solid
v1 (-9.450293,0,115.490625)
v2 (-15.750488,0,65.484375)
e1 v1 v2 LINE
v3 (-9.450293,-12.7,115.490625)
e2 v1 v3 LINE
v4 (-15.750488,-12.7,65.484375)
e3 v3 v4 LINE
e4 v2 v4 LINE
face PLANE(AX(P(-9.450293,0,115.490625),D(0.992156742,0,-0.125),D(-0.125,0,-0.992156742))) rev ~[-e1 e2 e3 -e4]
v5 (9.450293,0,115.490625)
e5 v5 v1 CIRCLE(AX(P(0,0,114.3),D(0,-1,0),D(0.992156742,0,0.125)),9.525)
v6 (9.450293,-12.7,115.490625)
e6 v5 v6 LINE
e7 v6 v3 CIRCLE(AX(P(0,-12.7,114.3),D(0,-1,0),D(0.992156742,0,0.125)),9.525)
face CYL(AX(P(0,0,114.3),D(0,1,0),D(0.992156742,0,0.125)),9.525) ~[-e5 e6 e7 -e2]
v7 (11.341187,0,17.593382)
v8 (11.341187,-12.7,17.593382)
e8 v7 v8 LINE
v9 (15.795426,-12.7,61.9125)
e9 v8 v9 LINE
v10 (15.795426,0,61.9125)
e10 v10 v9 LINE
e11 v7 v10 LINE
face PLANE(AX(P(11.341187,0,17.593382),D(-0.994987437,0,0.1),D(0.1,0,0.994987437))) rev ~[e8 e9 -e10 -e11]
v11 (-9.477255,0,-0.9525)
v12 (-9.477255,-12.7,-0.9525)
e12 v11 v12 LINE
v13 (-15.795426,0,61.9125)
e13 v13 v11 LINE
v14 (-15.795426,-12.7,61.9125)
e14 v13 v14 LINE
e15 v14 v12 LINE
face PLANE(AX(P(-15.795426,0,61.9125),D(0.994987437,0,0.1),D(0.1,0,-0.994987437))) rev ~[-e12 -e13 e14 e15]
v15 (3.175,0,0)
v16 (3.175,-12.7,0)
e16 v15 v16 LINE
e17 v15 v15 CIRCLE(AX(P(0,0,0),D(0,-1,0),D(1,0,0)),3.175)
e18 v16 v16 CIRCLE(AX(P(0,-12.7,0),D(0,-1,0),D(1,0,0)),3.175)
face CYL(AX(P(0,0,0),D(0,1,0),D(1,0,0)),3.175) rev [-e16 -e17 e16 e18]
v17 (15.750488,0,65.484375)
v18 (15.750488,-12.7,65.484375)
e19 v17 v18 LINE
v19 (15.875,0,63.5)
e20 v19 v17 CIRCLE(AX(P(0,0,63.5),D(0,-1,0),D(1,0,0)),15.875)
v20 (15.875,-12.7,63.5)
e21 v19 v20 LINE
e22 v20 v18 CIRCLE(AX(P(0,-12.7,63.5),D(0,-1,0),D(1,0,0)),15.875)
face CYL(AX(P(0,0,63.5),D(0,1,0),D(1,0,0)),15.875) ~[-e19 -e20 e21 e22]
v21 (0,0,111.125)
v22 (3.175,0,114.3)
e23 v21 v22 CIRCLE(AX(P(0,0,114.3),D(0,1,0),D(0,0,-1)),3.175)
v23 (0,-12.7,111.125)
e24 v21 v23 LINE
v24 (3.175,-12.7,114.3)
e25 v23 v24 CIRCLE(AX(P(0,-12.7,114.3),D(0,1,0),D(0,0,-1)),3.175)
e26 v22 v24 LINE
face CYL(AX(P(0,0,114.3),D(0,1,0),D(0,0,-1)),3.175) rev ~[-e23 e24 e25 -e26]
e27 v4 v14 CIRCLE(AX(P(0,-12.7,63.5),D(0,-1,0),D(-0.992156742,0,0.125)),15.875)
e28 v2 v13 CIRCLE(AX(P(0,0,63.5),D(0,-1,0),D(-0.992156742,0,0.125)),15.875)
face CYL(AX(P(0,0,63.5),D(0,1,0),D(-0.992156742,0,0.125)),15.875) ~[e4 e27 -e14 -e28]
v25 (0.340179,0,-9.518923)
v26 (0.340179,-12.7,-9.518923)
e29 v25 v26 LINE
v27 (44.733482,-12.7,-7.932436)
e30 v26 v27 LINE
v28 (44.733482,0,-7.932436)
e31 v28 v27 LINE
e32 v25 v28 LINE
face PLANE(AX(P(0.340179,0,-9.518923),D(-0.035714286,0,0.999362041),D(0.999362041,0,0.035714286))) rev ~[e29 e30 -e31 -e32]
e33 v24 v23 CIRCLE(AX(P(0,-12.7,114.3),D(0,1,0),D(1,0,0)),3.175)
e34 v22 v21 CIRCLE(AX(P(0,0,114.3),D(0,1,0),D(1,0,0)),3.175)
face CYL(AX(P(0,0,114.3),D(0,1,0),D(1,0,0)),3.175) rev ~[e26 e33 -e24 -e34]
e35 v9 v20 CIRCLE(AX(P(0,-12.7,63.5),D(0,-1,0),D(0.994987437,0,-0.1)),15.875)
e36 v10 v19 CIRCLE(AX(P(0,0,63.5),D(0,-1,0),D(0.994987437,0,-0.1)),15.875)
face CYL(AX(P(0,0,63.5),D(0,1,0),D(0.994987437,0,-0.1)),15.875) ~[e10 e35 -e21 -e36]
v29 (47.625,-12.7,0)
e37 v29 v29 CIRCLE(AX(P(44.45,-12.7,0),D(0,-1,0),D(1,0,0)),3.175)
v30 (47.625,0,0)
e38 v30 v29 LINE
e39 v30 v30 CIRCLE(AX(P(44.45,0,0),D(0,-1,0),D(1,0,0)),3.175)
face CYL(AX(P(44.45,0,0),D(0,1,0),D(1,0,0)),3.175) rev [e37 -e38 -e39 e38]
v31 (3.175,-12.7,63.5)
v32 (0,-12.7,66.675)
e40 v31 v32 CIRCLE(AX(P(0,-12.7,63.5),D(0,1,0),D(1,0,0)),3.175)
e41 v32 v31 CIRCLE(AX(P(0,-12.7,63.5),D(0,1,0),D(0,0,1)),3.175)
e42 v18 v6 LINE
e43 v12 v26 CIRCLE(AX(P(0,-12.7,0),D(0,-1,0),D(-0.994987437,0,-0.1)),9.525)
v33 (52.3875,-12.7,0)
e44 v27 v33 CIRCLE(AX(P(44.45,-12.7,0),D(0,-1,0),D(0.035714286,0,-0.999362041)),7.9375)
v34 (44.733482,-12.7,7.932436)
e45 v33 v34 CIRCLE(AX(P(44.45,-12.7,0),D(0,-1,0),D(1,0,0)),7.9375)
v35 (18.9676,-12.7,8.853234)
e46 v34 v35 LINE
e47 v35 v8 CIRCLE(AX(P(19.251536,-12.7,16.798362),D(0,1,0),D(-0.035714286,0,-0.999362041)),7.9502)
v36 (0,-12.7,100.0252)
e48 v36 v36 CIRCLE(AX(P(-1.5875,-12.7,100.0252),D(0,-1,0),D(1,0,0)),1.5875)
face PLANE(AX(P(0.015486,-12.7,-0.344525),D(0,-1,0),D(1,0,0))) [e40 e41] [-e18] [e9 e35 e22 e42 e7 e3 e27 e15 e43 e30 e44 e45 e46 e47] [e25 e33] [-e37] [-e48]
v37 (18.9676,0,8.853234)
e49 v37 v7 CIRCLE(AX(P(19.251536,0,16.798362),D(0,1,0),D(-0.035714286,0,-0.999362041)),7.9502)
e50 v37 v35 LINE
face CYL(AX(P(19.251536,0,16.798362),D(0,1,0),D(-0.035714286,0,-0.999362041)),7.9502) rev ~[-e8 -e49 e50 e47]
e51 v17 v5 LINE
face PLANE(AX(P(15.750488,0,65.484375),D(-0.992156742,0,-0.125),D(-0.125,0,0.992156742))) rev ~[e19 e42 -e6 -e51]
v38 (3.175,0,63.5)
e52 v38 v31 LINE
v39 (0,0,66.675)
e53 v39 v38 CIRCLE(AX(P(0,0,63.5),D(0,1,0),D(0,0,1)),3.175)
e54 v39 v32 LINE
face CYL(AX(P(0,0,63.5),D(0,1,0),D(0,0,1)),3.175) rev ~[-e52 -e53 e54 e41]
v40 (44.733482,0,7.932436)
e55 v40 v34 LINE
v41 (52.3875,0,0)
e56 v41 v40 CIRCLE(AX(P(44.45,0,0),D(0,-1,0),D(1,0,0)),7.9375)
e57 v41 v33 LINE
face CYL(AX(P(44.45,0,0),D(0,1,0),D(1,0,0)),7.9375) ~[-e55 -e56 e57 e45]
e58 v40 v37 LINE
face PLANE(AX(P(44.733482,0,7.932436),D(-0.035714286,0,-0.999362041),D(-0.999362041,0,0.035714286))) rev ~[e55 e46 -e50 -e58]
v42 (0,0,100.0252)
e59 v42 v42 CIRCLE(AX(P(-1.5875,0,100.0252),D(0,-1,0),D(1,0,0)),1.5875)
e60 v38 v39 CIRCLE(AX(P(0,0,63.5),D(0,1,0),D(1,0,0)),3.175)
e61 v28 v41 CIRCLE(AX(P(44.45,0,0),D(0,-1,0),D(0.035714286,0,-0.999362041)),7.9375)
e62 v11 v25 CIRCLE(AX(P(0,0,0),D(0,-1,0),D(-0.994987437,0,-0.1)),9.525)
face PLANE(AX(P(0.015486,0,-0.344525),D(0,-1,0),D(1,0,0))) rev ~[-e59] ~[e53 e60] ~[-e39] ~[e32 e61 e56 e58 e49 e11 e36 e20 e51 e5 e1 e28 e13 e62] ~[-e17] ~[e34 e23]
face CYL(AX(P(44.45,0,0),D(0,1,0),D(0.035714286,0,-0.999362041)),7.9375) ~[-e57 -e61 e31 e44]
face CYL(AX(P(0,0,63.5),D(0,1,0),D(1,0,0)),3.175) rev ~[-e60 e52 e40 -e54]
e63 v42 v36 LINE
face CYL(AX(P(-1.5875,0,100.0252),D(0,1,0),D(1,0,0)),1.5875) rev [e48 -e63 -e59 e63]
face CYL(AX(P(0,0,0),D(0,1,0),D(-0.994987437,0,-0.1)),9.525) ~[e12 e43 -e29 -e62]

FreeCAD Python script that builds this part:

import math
import FreeCAD as App
import Part
import Sketcher
from FreeCAD import Vector
Q = App.Units.Quantity

doc = App.newDocument("Part")
body = doc.addObject("PartDesign::Body", "Body")

# Sketch on XZ plane
sketch1 = body.newObject("Sketcher::SketchObject", "Sketch")
sketch1.AttachmentSupport = (doc.getObject("XZ_Plane"), [""])
sketch1.MapMode = "FlatFace"
sketch1.addGeometry(Part.Circle(Vector(-96.9, -59.9, 0), Vector(0, 0, 1), 3.2), False)
sketch1.addConstraint([
    Sketcher.Constraint("Diameter", 0, Q("0.25 in")),
    Sketcher.Constraint("DistanceX", 0, 3, -1, 1, 96.859179),
    Sketcher.Constraint("DistanceY", 0, 3, -1, 1, 59.924293),
])
pad1 = body.newObject("PartDesign::Pad", "Pad")
pad1.Profile = sketch1
pad1.Length = Q("0.5 in")
body2 = doc.addObject("PartDesign::Body", "Body001")

# Sketch on XZ plane
sketch2 = body2.newObject("Sketcher::SketchObject", "Sketch001")
sketch2.AttachmentSupport = (doc.getObject("XZ_Plane001"), [""])
sketch2.MapMode = "FlatFace"
sketch2.addGeometry([
    Part.ArcOfCircle(Part.Circle(Vector(0, 0, 0), Vector(0, 0, 1), 9.5), math.radians(-174), math.radians(-88)),  # 0
    Part.LineSegment(Vector(0.3, -9.5, 0), Vector(44.7, -7.9, 0)),  # 1
    Part.ArcOfCircle(Part.Circle(Vector(44.5, 0, 0), Vector(0, 0, 1), 7.9), math.radians(-88), math.radians(0)),  # 2
    Part.ArcOfCircle(Part.Circle(Vector(44.5, 0, 0), Vector(0, 0, 1), 7.9), math.radians(0), math.radians(88)),  # 3
    Part.LineSegment(Vector(44.7, 7.9, 0), Vector(19, 8.9, 0)),  # 4
    Part.ArcOfCircle(Part.Circle(Vector(19.3, 16.8, 0), Vector(0, 0, 1), 8), math.radians(174), math.radians(268)),  # 5
    Part.LineSegment(Vector(11.3, 17.6, 0), Vector(15.8, 61.9, 0)),  # 6
    Part.ArcOfCircle(Part.Circle(Vector(0, 63.5, 0), Vector(0, 0, 1), 15.9), math.radians(-5.74), math.radians(0)),  # 7
    Part.ArcOfCircle(Part.Circle(Vector(0, 63.5, 0), Vector(0, 0, 1), 15.9), math.radians(0), math.radians(7.18)),  # 8
    Part.LineSegment(Vector(15.8, 65.5, 0), Vector(9.5, 115.5, 0)),  # 9
    Part.ArcOfCircle(Part.Circle(Vector(0, 114.3, 0), Vector(0, 0, 1), 9.5), math.radians(7), math.radians(173)),  # 10
    Part.LineSegment(Vector(-9.5, 115.5, 0), Vector(-15.8, 65.5, 0)),  # 11
    Part.ArcOfCircle(Part.Circle(Vector(0, 63.5, 0), Vector(0, 0, 1), 15.9), math.radians(172.82), math.radians(185.74)),  # 12
    Part.LineSegment(Vector(-15.8, 61.9, 0), Vector(-9.5, -1, 0)),  # 13
    Part.Circle(Vector(0, 0, 0), Vector(0, 0, 1), 3.2),  # 14
    Part.Circle(Vector(44.5, 0, 0), Vector(0, 0, 1), 3.2),  # 15
    Part.ArcOfCircle(Part.Circle(Vector(0, 63.5, 0), Vector(0, 0, 1), 3.2), math.radians(0), math.radians(90)),  # 16
    Part.ArcOfCircle(Part.Circle(Vector(0, 63.5, 0), Vector(0, 0, 1), 3.2), math.radians(90), math.radians(360)),  # 17
    Part.Circle(Vector(-1.6, 100, 0), Vector(0, 0, 1), 1.6),  # 18
    Part.ArcOfCircle(Part.Circle(Vector(0, 114.3, 0), Vector(0, 0, 1), 3.2), math.radians(-90), math.radians(0)),  # 19
    Part.ArcOfCircle(Part.Circle(Vector(0, 114.3, 0), Vector(0, 0, 1), 3.2), math.radians(0), math.radians(270)),  # 20
], False)
sketch2.addConstraint([
    Sketcher.Constraint("Tangent", 0, 2, 1, 1),
    Sketcher.Constraint("Tangent", 1, 2, 2, 1),
    Sketcher.Constraint("Tangent", 2, 2, 3, 1),
    Sketcher.Constraint("Tangent", 3, 2, 4, 1),
    Sketcher.Constraint("Tangent", 4, 2, 5, 2),
    Sketcher.Constraint("Tangent", 5, 1, 6, 1),
    Sketcher.Constraint("Tangent", 6, 2, 7, 1),
    Sketcher.Constraint("Tangent", 7, 2, 8, 1),
    Sketcher.Constraint("Tangent", 8, 2, 9, 1),
    Sketcher.Constraint("Tangent", 9, 2, 10, 1),
    Sketcher.Constraint("Tangent", 10, 2, 11, 1),
    Sketcher.Constraint("Tangent", 11, 2, 12, 1),
    Sketcher.Constraint("Tangent", 12, 2, 13, 1),
    Sketcher.Constraint("Tangent", 13, 2, 0, 1),
    Sketcher.Constraint("Tangent", 16, 1, 17, 2),
    Sketcher.Constraint("Coincident", 17, 1, 16, 2),
    Sketcher.Constraint("Tangent", 19, 1, 20, 2),
    Sketcher.Constraint("Coincident", 20, 1, 19, 2),
    Sketcher.Constraint("Coincident", 0, 3, -1, 1),
    Sketcher.Constraint("Coincident", 14, 3, -1, 1),
    Sketcher.Constraint("Coincident", 12, 3, 7, 3),
    Sketcher.Constraint("Coincident", 15, 3, 2, 3),
    Sketcher.Constraint("Coincident", 16, 3, 7, 3),
    Sketcher.Constraint("Coincident", 19, 3, 10, 3),
    Sketcher.Constraint("Equal", 2, 3),
    Sketcher.Constraint("Equal", 7, 8),
    Sketcher.Constraint("Equal", 0, 10),
    Sketcher.Constraint("Equal", 8, 12),
    Sketcher.Constraint("Equal", 14, 15),
    Sketcher.Constraint("Equal", 15, 16),
    Sketcher.Constraint("Equal", 17, 19),
    Sketcher.Constraint("Symmetric", 9, 2, 10, 2, -2),
    Sketcher.Constraint("Symmetric", 1, 2, 3, 2, -1),
    Sketcher.Constraint("PointOnObject", 2, 2, -1),
    Sketcher.Constraint("PointOnObject", 17, 1, -2),
    Sketcher.Constraint("PointOnObject", 19, 1, -2),
    Sketcher.Constraint("Horizontal", 17, 3, 7, 2),
    Sketcher.Constraint("Horizontal", 6, 2, 12, 2),
    Sketcher.Constraint("Horizontal", 7, 2, 16, 1),
    Sketcher.Constraint("Horizontal", 19, 3, 20, 1),
    Sketcher.Constraint("Diameter", 14, Q("0.25 in")),
    Sketcher.Constraint("Diameter", 18, Q("0.125 in")),
    Sketcher.Constraint("Radius", 0, Q("0.375 in")),
    Sketcher.Constraint("Radius", 2, Q("0.3125 in")),
    Sketcher.Constraint("Radius", 5, Q("0.313 in")),
    Sketcher.Constraint("Radius", 7, Q("0.625 in")),
    Sketcher.Constraint("DistanceY", 7, 3, 10, 3, Q("2 in")),
    Sketcher.Constraint("DistanceY", -1, 1, 7, 3, Q("2.5 in")),
    Sketcher.Constraint("DistanceX", -1, 1, 2, 3, Q("1.75 in")),
    Sketcher.Constraint("DistanceX", 18, 3, -1, 1, Q("0.0625 in")),
    Sketcher.Constraint("DistanceY", -1, 1, 18, 3, Q("3.938 in")),
])
pad2 = body2.newObject("PartDesign::Pad", "Pad001")
pad2.Profile = sketch2
pad2.Length = Q("0.5 in")
body.Visibility = False

doc.recompute()
